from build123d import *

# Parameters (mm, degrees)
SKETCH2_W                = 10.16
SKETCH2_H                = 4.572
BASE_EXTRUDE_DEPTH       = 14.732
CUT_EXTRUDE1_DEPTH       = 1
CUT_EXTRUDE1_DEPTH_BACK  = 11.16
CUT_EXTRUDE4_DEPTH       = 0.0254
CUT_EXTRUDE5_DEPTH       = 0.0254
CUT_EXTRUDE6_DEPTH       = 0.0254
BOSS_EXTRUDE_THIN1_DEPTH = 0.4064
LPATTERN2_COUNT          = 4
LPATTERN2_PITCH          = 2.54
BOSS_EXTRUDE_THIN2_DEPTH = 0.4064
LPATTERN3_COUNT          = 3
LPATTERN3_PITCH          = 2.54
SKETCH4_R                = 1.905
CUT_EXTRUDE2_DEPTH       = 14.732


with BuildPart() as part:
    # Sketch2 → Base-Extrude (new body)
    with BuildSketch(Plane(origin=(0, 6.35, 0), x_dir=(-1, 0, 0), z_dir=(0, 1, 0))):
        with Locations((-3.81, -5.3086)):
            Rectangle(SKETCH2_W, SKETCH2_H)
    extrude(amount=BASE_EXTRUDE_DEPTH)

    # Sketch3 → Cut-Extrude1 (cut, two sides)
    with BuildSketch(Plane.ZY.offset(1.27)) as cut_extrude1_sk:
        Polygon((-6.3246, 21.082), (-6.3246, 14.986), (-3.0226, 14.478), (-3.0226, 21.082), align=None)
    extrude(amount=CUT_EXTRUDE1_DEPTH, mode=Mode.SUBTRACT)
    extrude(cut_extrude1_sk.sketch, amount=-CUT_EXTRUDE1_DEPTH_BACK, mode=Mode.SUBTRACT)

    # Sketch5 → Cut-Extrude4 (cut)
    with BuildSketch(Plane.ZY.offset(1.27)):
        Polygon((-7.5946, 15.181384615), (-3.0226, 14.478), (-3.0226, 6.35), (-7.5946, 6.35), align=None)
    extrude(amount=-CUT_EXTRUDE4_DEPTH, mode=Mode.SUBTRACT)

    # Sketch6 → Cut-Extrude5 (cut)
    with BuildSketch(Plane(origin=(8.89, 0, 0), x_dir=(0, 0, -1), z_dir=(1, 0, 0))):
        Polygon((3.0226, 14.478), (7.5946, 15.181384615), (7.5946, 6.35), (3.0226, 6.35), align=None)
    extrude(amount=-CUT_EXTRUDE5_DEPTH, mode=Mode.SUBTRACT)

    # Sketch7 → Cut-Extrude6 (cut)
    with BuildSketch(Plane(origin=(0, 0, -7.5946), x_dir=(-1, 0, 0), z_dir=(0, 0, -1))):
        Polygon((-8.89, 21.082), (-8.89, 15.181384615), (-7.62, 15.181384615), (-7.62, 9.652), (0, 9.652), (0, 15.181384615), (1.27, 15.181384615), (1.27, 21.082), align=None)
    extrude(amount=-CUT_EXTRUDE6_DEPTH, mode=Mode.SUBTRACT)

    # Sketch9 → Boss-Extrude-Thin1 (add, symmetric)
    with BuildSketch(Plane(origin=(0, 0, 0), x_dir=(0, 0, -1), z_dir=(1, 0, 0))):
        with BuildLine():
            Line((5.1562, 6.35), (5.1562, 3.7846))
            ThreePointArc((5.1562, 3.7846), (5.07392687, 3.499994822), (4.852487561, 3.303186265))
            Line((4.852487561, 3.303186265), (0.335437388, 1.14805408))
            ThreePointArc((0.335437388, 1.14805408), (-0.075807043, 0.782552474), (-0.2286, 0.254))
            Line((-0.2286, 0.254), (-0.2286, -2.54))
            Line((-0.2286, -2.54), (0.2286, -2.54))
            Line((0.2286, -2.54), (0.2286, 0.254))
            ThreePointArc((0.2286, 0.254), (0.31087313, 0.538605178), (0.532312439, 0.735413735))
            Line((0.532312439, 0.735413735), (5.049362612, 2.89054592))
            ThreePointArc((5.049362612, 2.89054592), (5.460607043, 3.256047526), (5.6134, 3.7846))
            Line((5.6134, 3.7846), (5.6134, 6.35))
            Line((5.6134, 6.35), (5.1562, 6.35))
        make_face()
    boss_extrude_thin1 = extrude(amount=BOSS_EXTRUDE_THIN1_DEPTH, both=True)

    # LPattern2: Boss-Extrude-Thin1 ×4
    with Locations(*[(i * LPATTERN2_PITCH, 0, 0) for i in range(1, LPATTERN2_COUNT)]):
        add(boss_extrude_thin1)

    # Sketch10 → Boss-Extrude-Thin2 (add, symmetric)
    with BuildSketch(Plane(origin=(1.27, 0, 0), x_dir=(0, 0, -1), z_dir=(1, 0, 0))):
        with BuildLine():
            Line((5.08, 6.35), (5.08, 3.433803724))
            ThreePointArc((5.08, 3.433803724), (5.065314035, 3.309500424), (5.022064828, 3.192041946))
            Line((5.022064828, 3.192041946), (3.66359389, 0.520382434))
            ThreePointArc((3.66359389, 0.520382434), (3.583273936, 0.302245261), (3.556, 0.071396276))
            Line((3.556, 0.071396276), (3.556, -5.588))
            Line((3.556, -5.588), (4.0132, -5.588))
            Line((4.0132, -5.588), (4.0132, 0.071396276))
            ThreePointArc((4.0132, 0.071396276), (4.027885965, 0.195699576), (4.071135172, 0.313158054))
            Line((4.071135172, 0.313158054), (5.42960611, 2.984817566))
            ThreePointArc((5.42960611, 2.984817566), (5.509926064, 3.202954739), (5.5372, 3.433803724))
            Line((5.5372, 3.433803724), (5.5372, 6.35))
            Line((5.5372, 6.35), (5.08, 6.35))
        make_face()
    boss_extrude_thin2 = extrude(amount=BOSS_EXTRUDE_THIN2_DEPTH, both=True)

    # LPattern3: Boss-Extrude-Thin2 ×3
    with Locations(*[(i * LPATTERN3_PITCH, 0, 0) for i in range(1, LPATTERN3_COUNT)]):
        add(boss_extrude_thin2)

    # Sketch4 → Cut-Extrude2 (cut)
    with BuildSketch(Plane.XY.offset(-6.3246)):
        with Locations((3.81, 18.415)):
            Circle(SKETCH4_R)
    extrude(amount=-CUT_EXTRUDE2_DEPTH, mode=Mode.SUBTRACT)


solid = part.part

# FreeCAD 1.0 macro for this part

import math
import FreeCAD as App
import Part
import Sketcher

V = App.Vector
Q = App.Units.Quantity

doc = App.newDocument("Part")
params = doc.addObject("Spreadsheet::Sheet", "Params")
for row, (alias, value) in enumerate([
    ("sketch1_width", "0.4 in"),
    ("sketch1_height", "0.18 in"),
    ("pad1_length", "0.58 in"),
    ("sketch2_width", "0.24 in"),
    ("sketch2_width2", "0.26 in"),
    ("sketch2_height", "0.13 in"),
    ("sketch3_width", "0.32 in"),
    ("sketch3_height", "0.18 in"),
    ("pocket2_length", "0.001 in"),
    ("sketch4_width", "0.32 in"),
    ("sketch4_height", "0.18 in"),
    ("pocket3_length", "0.001 in"),
    ("sketch5_width", "0.3 in"),
    ("sketch5_width2", "0.4 in"),
    ("pocket4_length", "0.001 in"),
    ("sketch6_radius", "0.021 in"),
    ("sketch6_radius2", "0.039 in"),
    ("sketch6_width", "0.11 in"),
    ("sketch6_width2", "0.101 in"),
    ("pad2_length", "0.032 in"),
    ("linearpattern_pitch", "0.1 in"),
    ("sketch7_radius", "0.021 in"),
    ("sketch7_radius2", "0.039 in"),
    ("sketch7_length", "0.118 in"),
    ("pad3_length", "0.032 in"),
    ("linearpattern2_pitch", "0.1 in"),
    ("sketch8_diameter", "0.15 in"),
    ("pocket5_length", "0.58 in"),
], start=1):
    params.set(f"A{row}", alias)
    params.set(f"B{row}", "=" + value)
    params.setAlias(f"B{row}", alias)

body = doc.addObject("PartDesign::Body", "Body")

# Sketch on XZ plane
sketch1 = doc.addObject("Sketcher::SketchObject", "Sketch")
body.addObject(sketch1)
sketch1.AttachmentSupport = (doc.XZ_Plane, [""])
sketch1.MapMode = "FlatFace"
sketch1.AttachmentOffset = App.Placement(V(0, 0, -0.25 * 25.4), App.Rotation())
sketch1.addGeometry(Part.LineSegment(V(8.89, -3.0226, 0), V(8.89, -7.5946, 0)), False)
sketch1.addGeometry(Part.LineSegment(V(8.89, -7.5946, 0), V(-1.27, -7.5946, 0)), False)
sketch1.addGeometry(Part.LineSegment(V(-1.27, -7.5946, 0), V(-1.27, -3.0226, 0)), False)
sketch1.addGeometry(Part.LineSegment(V(-1.27, -3.0226, 0), V(8.89, -3.0226, 0)), False)
sketch1.addConstraint(Sketcher.Constraint("Coincident", 0, 2, 1, 1))
sketch1.addConstraint(Sketcher.Constraint("Coincident", 1, 2, 2, 1))
sketch1.addConstraint(Sketcher.Constraint("Coincident", 2, 2, 3, 1))
sketch1.addConstraint(Sketcher.Constraint("Coincident", 3, 2, 0, 1))
sketch1.addConstraint(Sketcher.Constraint("Vertical", 0))
sketch1.addConstraint(Sketcher.Constraint("Horizontal", 1))
sketch1.addConstraint(Sketcher.Constraint("Vertical", 2))
sketch1.addConstraint(Sketcher.Constraint("Horizontal", 3))
sketch1.addConstraint(Sketcher.Constraint("DistanceX", 1, 2, 1, 1, Q("0.4 in")))
sketch1.addConstraint(Sketcher.Constraint("DistanceY", 0, 2, 0, 1, Q("0.18 in")))
sketch1.addConstraint(Sketcher.Constraint("DistanceX", -1, 1, 0, 2, Q("0.35 in")))
sketch1.addConstraint(Sketcher.Constraint("DistanceY", 0, 2, -1, 1, Q("0.299 in")))
sketch1.setExpression("Constraints[8]", "Params.sketch1_width")
sketch1.setExpression("Constraints[9]", "Params.sketch1_height")
pad1 = doc.addObject("PartDesign::Pad", "Pad")
body.addObject(pad1)
pad1.Profile = sketch1
pad1.setExpression("Length", "Params.pad1_length")
pad1.Reversed = True

# Sketch on YZ plane
sketch2 = doc.addObject("Sketcher::SketchObject", "Sketch001")
body.addObject(sketch2)
sketch2.AttachmentSupport = (doc.YZ_Plane, [""])
sketch2.MapMode = "FlatFace"
sketch2.AttachmentOffset = App.Placement(V(0, 0, -0.05 * 25.4), App.Rotation())
sketch2.addGeometry(Part.LineSegment(V(21.082, -6.3246, 0), V(14.986, -6.3246, 0)), False)
sketch2.addGeometry(Part.LineSegment(V(14.986, -6.3246, 0), V(14.478, -3.0226, 0)), False)
sketch2.addGeometry(Part.LineSegment(V(14.478, -3.0226, 0), V(21.082, -3.0226, 0)), False)
sketch2.addGeometry(Part.LineSegment(V(21.082, -3.0226, 0), V(21.082, -6.3246, 0)), False)
sketch2.addConstraint(Sketcher.Constraint("Coincident", 0, 2, 1, 1))
sketch2.addConstraint(Sketcher.Constraint("Coincident", 1, 2, 2, 1))
sketch2.addConstraint(Sketcher.Constraint("Coincident", 2, 2, 3, 1))
sketch2.addConstraint(Sketcher.Constraint("Coincident", 3, 2, 0, 1))
sketch2.addConstraint(Sketcher.Constraint("Horizontal", 0))
sketch2.addConstraint(Sketcher.Constraint("Horizontal", 2))
sketch2.addConstraint(Sketcher.Constraint("Vertical", 3))
sketch2.addConstraint(Sketcher.Constraint("DistanceX", 0, 2, 0, 1, Q("0.24 in")))
sketch2.addConstraint(Sketcher.Constraint("DistanceX", 2, 1, 2, 2, Q("0.26 in")))
sketch2.addConstraint(Sketcher.Constraint("DistanceY", 3, 2, 3, 1, Q("0.13 in")))
sketch2.addConstraint(Sketcher.Constraint("DistanceX", -1, 1, 0, 2, Q("0.59 in")))
sketch2.addConstraint(Sketcher.Constraint("DistanceY", 0, 2, -1, 1, Q("0.249 in")))
sketch2.setExpression("Constraints[7]", "Params.sketch2_width")
sketch2.setExpression("Constraints[8]", "Params.sketch2_width2")
sketch2.setExpression("Constraints[9]", "Params.sketch2_height")
pocket1 = doc.addObject("PartDesign::Pocket", "Pocket")
body.addObject(pocket1)
pocket1.Profile = sketch2
pocket1.Type = "ThroughAll"
pocket1.Midplane = True

# Sketch on YZ plane
sketch3 = doc.addObject("Sketcher::SketchObject", "Sketch002")
body.addObject(sketch3)
sketch3.AttachmentSupport = (doc.YZ_Plane, [""])
sketch3.MapMode = "FlatFace"
sketch3.AttachmentOffset = App.Placement(V(0, 0, -0.05 * 25.4), App.Rotation())
sketch3.addGeometry(Part.LineSegment(V(14.478, -3.0226, 0), V(15.181385, -7.5946, 0)), False)
sketch3.addGeometry(Part.LineSegment(V(15.181385, -7.5946, 0), V(6.35, -7.5946, 0)), False)
sketch3.addGeometry(Part.LineSegment(V(6.35, -7.5946, 0), V(6.35, -3.0226, 0)), False)
sketch3.addGeometry(Part.LineSegment(V(6.35, -3.0226, 0), V(14.478, -3.0226, 0)), False)
sketch3.addConstraint(Sketcher.Constraint("Coincident", 0, 2, 1, 1))
sketch3.addConstraint(Sketcher.Constraint("Coincident", 1, 2, 2, 1))
sketch3.addConstraint(Sketcher.Constraint("Coincident", 2, 2, 3, 1))
sketch3.addConstraint(Sketcher.Constraint("Coincident", 3, 2, 0, 1))
sketch3.addConstraint(Sketcher.Constraint("Horizontal", 1))
sketch3.addConstraint(Sketcher.Constraint("Vertical", 2))
sketch3.addConstraint(Sketcher.Constraint("Horizontal", 3))
sketch3.addConstraint(Sketcher.Constraint("DistanceX", 3, 1, 3, 2, Q("0.32 in")))
sketch3.addConstraint(Sketcher.Constraint("DistanceY", 2, 1, 2, 2, Q("0.18 in")))
sketch3.addConstraint(Sketcher.Constraint("DistanceX", -1, 1, 1, 2, Q("0.25 in")))
sketch3.addConstraint(Sketcher.Constraint("DistanceY", 0, 2, -1, 1, Q("0.299 in")))
sketch3.addConstraint(Sketcher.Constraint("Distance", 0, Q("4.62579 mm")))
sketch3.setExpression("Constraints[7]", "Params.sketch3_width")
sketch3.setExpression("Constraints[8]", "Params.sketch3_height")
pocket2 = doc.addObject("PartDesign::Pocket", "Pocket001")
body.addObject(pocket2)
pocket2.Profile = sketch3
pocket2.setExpression("Length", "Params.pocket2_length")
pocket2.Reversed = True

# Sketch on YZ plane
sketch4 = doc.addObject("Sketcher::SketchObject", "Sketch003")
body.addObject(sketch4)
sketch4.AttachmentSupport = (doc.YZ_Plane, [""])
sketch4.MapMode = "FlatFace"
sketch4.AttachmentOffset = App.Placement(V(0, 0, 0.35 * 25.4), App.Rotation())
sketch4.addGeometry(Part.LineSegment(V(15.181385, -7.5946, 0), V(14.478, -3.0226, 0)), False)
sketch4.addGeometry(Part.LineSegment(V(14.478, -3.0226, 0), V(6.35, -3.0226, 0)), False)
sketch4.addGeometry(Part.LineSegment(V(6.35, -3.0226, 0), V(6.35, -7.5946, 0)), False)
sketch4.addGeometry(Part.LineSegment(V(6.35, -7.5946, 0), V(15.181385, -7.5946, 0)), False)
sketch4.addConstraint(Sketcher.Constraint("Coincident", 0, 2, 1, 1))
sketch4.addConstraint(Sketcher.Constraint("Coincident", 1, 2, 2, 1))
sketch4.addConstraint(Sketcher.Constraint("Coincident", 2, 2, 3, 1))
sketch4.addConstraint(Sketcher.Constraint("Coincident", 3, 2, 0, 1))
sketch4.addConstraint(Sketcher.Constraint("Horizontal", 1))
sketch4.addConstraint(Sketcher.Constraint("Vertical", 2))
sketch4.addConstraint(Sketcher.Constraint("Horizontal", 3))
sketch4.addConstraint(Sketcher.Constraint("DistanceX", 1, 2, 1, 1, Q("0.32 in")))
sketch4.addConstraint(Sketcher.Constraint("DistanceY", 2, 2, 2, 1, Q("0.18 in")))
sketch4.addConstraint(Sketcher.Constraint("DistanceX", -1, 1, 0, 2, Q("0.57 in")))
sketch4.addConstraint(Sketcher.Constraint("DistanceY", 0, 2, -1, 1, Q("0.119 in")))
sketch4.addConstraint(Sketcher.Constraint("Distance", 0, Q("4.62579 mm")))
sketch4.setExpression("Constraints[7]", "Params.sketch4_width")
sketch4.setExpression("Constraints[8]", "Params.sketch4_height")
pocket3 = doc.addObject("PartDesign::Pocket", "Pocket002")
body.addObject(pocket3)
pocket3.Profile = sketch4
pocket3.setExpression("Length", "Params.pocket3_length")

# Sketch on XY plane
sketch5 = doc.addObject("Sketcher::SketchObject", "Sketch004")
body.addObject(sketch5)
sketch5.AttachmentSupport = (doc.XY_Plane, [""])
sketch5.MapMode = "FlatFace"
sketch5.AttachmentOffset = App.Placement(V(0, 0, -0.299 * 25.4), App.Rotation())
sketch5.addGeometry(Part.LineSegment(V(8.89, 21.082, 0), V(8.89, 15.181385, 0)), False)
sketch5.addGeometry(Part.LineSegment(V(8.89, 15.181385, 0), V(7.62, 15.181385, 0)), False)
sketch5.addGeometry(Part.LineSegment(V(7.62, 15.181385, 0), V(7.62, 9.652, 0)), False)
sketch5.addGeometry(Part.LineSegment(V(7.62, 9.652, 0), V(0, 9.652, 0)), False)
sketch5.addGeometry(Part.LineSegment(V(0, 9.652, 0), V(0, 15.181385, 0)), False)
sketch5.addGeometry(Part.LineSegment(V(0, 15.181385, 0), V(-1.27, 15.181385, 0)), False)
sketch5.addGeometry(Part.LineSegment(V(-1.27, 15.181385, 0), V(-1.27, 21.082, 0)), False)
sketch5.addGeometry(Part.LineSegment(V(-1.27, 21.082, 0), V(8.89, 21.082, 0)), False)
sketch5.addConstraint(Sketcher.Constraint("Coincident", 0, 2, 1, 1))
sketch5.addConstraint(Sketcher.Constraint("Coincident", 1, 2, 2, 1))
sketch5.addConstraint(Sketcher.Constraint("Coincident", 2, 2, 3, 1))
sketch5.addConstraint(Sketcher.Constraint("Coincident", 3, 2, 4, 1))
sketch5.addConstraint(Sketcher.Constraint("Coincident", 4, 2, 5, 1))
sketch5.addConstraint(Sketcher.Constraint("Coincident", 5, 2, 6, 1))
sketch5.addConstraint(Sketcher.Constraint("Coincident", 6, 2, 7, 1))
sketch5.addConstraint(Sketcher.Constraint("Coincident", 7, 2, 0, 1))
sketch5.addConstraint(Sketcher.Constraint("Vertical", 0))
sketch5.addConstraint(Sketcher.Constraint("Horizontal", 1))
sketch5.addConstraint(Sketcher.Constraint("Vertical", 2))
sketch5.addConstraint(Sketcher.Constraint("Horizontal", 3))
sketch5.addConstraint(Sketcher.Constraint("Vertical", 4))
sketch5.addConstraint(Sketcher.Constraint("Horizontal", 5))
sketch5.addConstraint(Sketcher.Constraint("Vertical", 6))
sketch5.addConstraint(Sketcher.Constraint("Horizontal", 7))
sketch5.addConstraint(Sketcher.Constraint("PointOnObject", 3, 2, -2))
sketch5.addConstraint(Sketcher.Constraint("Horizontal", 1, 2, 4, 2))
sketch5.addConstraint(Sketcher.Constraint("Equal", 1, 5))
sketch5.addConstraint(Sketcher.Constraint("DistanceX", 3, 2, 3, 1, Q("0.3 in")))
sketch5.addConstraint(Sketcher.Constraint("DistanceX", 7, 1, 7, 2, Q("0.4 in")))
sketch5.addConstraint(Sketcher.Constraint("DistanceY", -1, 1, 2, 2, Q("0.38 in")))
sketch5.addConstraint(Sketcher.Constraint("DistanceY", -1, 1, 6, 2, Q("0.83 in")))
sketch5.addConstraint(Sketcher.Constraint("DistanceY", 0, 2, 0, 1, Q("5.900615 mm")))
sketch5.setExpression("Constraints[19]", "Params.sketch5_width")
sketch5.setExpression("Constraints[20]", "Params.sketch5_width2")
pocket4 = doc.addObject("PartDesign::Pocket", "Pocket003")
body.addObject(pocket4)
pocket4.Profile = sketch5
pocket4.setExpression("Length", "Params.pocket4_length")
pocket4.Reversed = True

# Sketch on YZ plane
sketch6 = doc.addObject("Sketcher::SketchObject", "Sketch005")
body.addObject(sketch6)
sketch6.AttachmentSupport = (doc.YZ_Plane, [""])
sketch6.MapMode = "FlatFace"
sketch6.addGeometry(Part.LineSegment(V(6.35, -5.1562, 0), V(3.7846, -5.1562, 0)), False)
sketch6.addGeometry(Part.ArcOfCircle(Part.Circle(V(3.7846, -4.6228, 0), V(0, 0, 1), 0.5334), math.radians(-154.493699), math.radians(-90)), False)
sketch6.addGeometry(Part.LineSegment(V(3.303186, -4.852488, 0), V(1.148054, -0.335437, 0)), False)
sketch6.addGeometry(Part.ArcOfCircle(Part.Circle(V(0.254, -0.762, 0), V(0, 0, 1), 0.9906), math.radians(25.506301), math.radians(90)), False)
sketch6.addGeometry(Part.LineSegment(V(0.254, 0.2286, 0), V(-2.54, 0.2286, 0)), False)
sketch6.addGeometry(Part.LineSegment(V(-2.54, 0.2286, 0), V(-2.54, -0.2286, 0)), False)
sketch6.addGeometry(Part.LineSegment(V(-2.54, -0.2286, 0), V(0.254, -0.2286, 0)), False)
sketch6.addGeometry(Part.ArcOfCircle(Part.Circle(V(0.254, -0.762, 0), V(0, 0, 1), 0.5334), math.radians(25.506301), math.radians(90)), False)
sketch6.addGeometry(Part.LineSegment(V(0.735414, -0.532312, 0), V(2.890546, -5.049363, 0)), False)
sketch6.addGeometry(Part.ArcOfCircle(Part.Circle(V(3.7846, -4.6228, 0), V(0, 0, 1), 0.9906), math.radians(-154.493699), math.radians(-90)), False)
sketch6.addGeometry(Part.LineSegment(V(3.7846, -5.6134, 0), V(6.35, -5.6134, 0)), False)
sketch6.addGeometry(Part.LineSegment(V(6.35, -5.6134, 0), V(6.35, -5.1562, 0)), False)
sketch6.addConstraint(Sketcher.Constraint("Tangent", 0, 2, 1, 2))
sketch6.addConstraint(Sketcher.Constraint("Tangent", 1, 1, 2, 1))
sketch6.addConstraint(Sketcher.Constraint("Tangent", 2, 2, 3, 1))
sketch6.addConstraint(Sketcher.Constraint("Tangent", 3, 2, 4, 1))
sketch6.addConstraint(Sketcher.Constraint("Coincident", 4, 2, 5, 1))
sketch6.addConstraint(Sketcher.Constraint("Coincident", 5, 2, 6, 1))
sketch6.addConstraint(Sketcher.Constraint("Tangent", 6, 2, 7, 2))
sketch6.addConstraint(Sketcher.Constraint("Tangent", 7, 1, 8, 1))
sketch6.addConstraint(Sketcher.Constraint("Tangent", 8, 2, 9, 1))
sketch6.addConstraint(Sketcher.Constraint("Tangent", 9, 2, 10, 1))
sketch6.addConstraint(Sketcher.Constraint("Coincident", 10, 2, 11, 1))
sketch6.addConstraint(Sketcher.Constraint("Coincident", 11, 2, 0, 1))
sketch6.addConstraint(Sketcher.Constraint("Horizontal", 0))
sketch6.addConstraint(Sketcher.Constraint("Horizontal", 4))
sketch6.addConstraint(Sketcher.Constraint("Vertical", 5))
sketch6.addConstraint(Sketcher.Constraint("Horizontal", 6))
sketch6.addConstraint(Sketcher.Constraint("Horizontal", 10))
sketch6.addConstraint(Sketcher.Constraint("Vertical", 11))
sketch6.addConstraint(Sketcher.Constraint("Coincident", 7, 3, 3, 3))
sketch6.addConstraint(Sketcher.Constraint("Coincident", 9, 3, 1, 3))
sketch6.addConstraint(Sketcher.Constraint("Equal", 1, 7))
sketch6.addConstraint(Sketcher.Constraint("Equal", 3, 9))
sketch6.addConstraint(Sketcher.Constraint("Radius", 1, Q("0.021 in")))
sketch6.addConstraint(Sketcher.Constraint("Radius", 3, Q("0.039 in")))
sketch6.addConstraint(Sketcher.Constraint("DistanceX", 4, 2, 4, 1, Q("0.11 in")))
sketch6.addConstraint(Sketcher.Constraint("DistanceX", 4, 2, -1, 1, Q("0.1 in")))
sketch6.addConstraint(Sketcher.Constraint("DistanceX", 0, 2, 0, 1, Q("0.101 in")))
sketch6.addConstraint(Sketcher.Constraint("DistanceY", 3, 3, -1, 1, Q("0.03 in")))
sketch6.addConstraint(Sketcher.Constraint("DistanceX", -1, 1, 10, 2, Q("0.25 in")))
sketch6.addConstraint(Sketcher.Constraint("DistanceY", 1, 3, -1, 1, Q("0.182 in")))
sketch6.setExpression("Constraints[22]", "Params.sketch6_radius")
sketch6.setExpression("Constraints[23]", "Params.sketch6_radius2")
sketch6.setExpression("Constraints[24]", "Params.sketch6_width")
sketch6.setExpression("Constraints[26]", "Params.sketch6_width2")
pad2 = doc.addObject("PartDesign::Pad", "Pad001")
body.addObject(pad2)
pad2.Profile = sketch6
pad2.setExpression("Length", "Params.pad2_length")
pad2.Midplane = True
doc.recompute()

linearpattern = doc.addObject("PartDesign::LinearPattern", "LinearPattern")
body.addObject(linearpattern)
linearpattern.Originals = [pad2]
linearpattern.Direction = (doc.X_Axis, [""])
linearpattern.Mode = "offset"
linearpattern.setExpression("Offset", "Params.linearpattern_pitch")
linearpattern.Occurrences = 4
body.Tip = linearpattern

# Sketch on YZ plane
sketch7 = doc.addObject("Sketcher::SketchObject", "Sketch006")
body.addObject(sketch7)
sketch7.AttachmentSupport = (doc.YZ_Plane, [""])
sketch7.MapMode = "FlatFace"
sketch7.AttachmentOffset = App.Placement(V(0, 0, 0.05 * 25.4), App.Rotation())
sketch7.addGeometry(Part.LineSegment(V(6.35, -5.08, 0), V(3.433804, -5.08, 0)), False)
sketch7.addGeometry(Part.ArcOfCircle(Part.Circle(V(3.433804, -4.5466, 0), V(0, 0, 1), 0.5334), math.radians(-116.952179), math.radians(-90)), False)
sketch7.addGeometry(Part.LineSegment(V(3.192042, -5.022065, 0), V(0.520382, -3.663594, 0)), False)
sketch7.addGeometry(Part.ArcOfCircle(Part.Circle(V(0.071396, -4.5466, 0), V(0, 0, 1), 0.9906), math.radians(63.047821), math.radians(90)), False)
sketch7.addGeometry(Part.LineSegment(V(0.071396, -3.556, 0), V(-5.588, -3.556, 0)), False)
sketch7.addGeometry(Part.LineSegment(V(-5.588, -3.556, 0), V(-5.588, -4.0132, 0)), False)
sketch7.addGeometry(Part.LineSegment(V(-5.588, -4.0132, 0), V(0.071396, -4.0132, 0)), False)
sketch7.addGeometry(Part.ArcOfCircle(Part.Circle(V(0.071396, -4.5466, 0), V(0, 0, 1), 0.5334), math.radians(63.047821), math.radians(90)), False)
sketch7.addGeometry(Part.LineSegment(V(0.313158, -4.071135, 0), V(2.984818, -5.429606, 0)), False)
sketch7.addGeometry(Part.ArcOfCircle(Part.Circle(V(3.433804, -4.5466, 0), V(0, 0, 1), 0.9906), math.radians(-116.952179), math.radians(-90)), False)
sketch7.addGeometry(Part.LineSegment(V(3.433804, -5.5372, 0), V(6.35, -5.5372, 0)), False)
sketch7.addGeometry(Part.LineSegment(V(6.35, -5.5372, 0), V(6.35, -5.08, 0)), False)
sketch7.addConstraint(Sketcher.Constraint("Tangent", 0, 2, 1, 2))
sketch7.addConstraint(Sketcher.Constraint("Tangent", 1, 1, 2, 1))
sketch7.addConstraint(Sketcher.Constraint("Tangent", 2, 2, 3, 1))
sketch7.addConstraint(Sketcher.Constraint("Tangent", 3, 2, 4, 1))
sketch7.addConstraint(Sketcher.Constraint("Coincident", 4, 2, 5, 1))
sketch7.addConstraint(Sketcher.Constraint("Coincident", 5, 2, 6, 1))
sketch7.addConstraint(Sketcher.Constraint("Tangent", 6, 2, 7, 2))
sketch7.addConstraint(Sketcher.Constraint("Tangent", 7, 1, 8, 1))
sketch7.addConstraint(Sketcher.Constraint("Tangent", 8, 2, 9, 1))
sketch7.addConstraint(Sketcher.Constraint("Tangent", 9, 2, 10, 1))
sketch7.addConstraint(Sketcher.Constraint("Coincident", 10, 2, 11, 1))
sketch7.addConstraint(Sketcher.Constraint("Coincident", 11, 2, 0, 1))
sketch7.addConstraint(Sketcher.Constraint("Horizontal", 0))
sketch7.addConstraint(Sketcher.Constraint("Horizontal", 4))
sketch7.addConstraint(Sketcher.Constraint("Vertical", 5))
sketch7.addConstraint(Sketcher.Constraint("Horizontal", 6))
sketch7.addConstraint(Sketcher.Constraint("Horizontal", 10))
sketch7.addConstraint(Sketcher.Constraint("Vertical", 11))
sketch7.addConstraint(Sketcher.Constraint("Coincident", 7, 3, 3, 3))
sketch7.addConstraint(Sketcher.Constraint("Coincident", 9, 3, 1, 3))
sketch7.addConstraint(Sketcher.Constraint("Equal", 1, 7))
sketch7.addConstraint(Sketcher.Constraint("Equal", 3, 9))
sketch7.addConstraint(Sketcher.Constraint("Horizontal", 1, 3, 3, 3))
sketch7.addConstraint(Sketcher.Constraint("Radius", 1, Q("0.021 in")))
sketch7.addConstraint(Sketcher.Constraint("Radius", 3, Q("0.039 in")))
sketch7.addConstraint(Sketcher.Constraint("DistanceY", 0, 2, -1, 1, Q("0.2 in")))
sketch7.addConstraint(Sketcher.Constraint("DistanceX", 4, 2, -1, 1, Q("0.22 in")))
sketch7.addConstraint(Sketcher.Constraint("DistanceX", -1, 1, 10, 2, Q("0.25 in")))
sketch7.addConstraint(Sketcher.Constraint("Distance", 2, Q("0.118 in")))
sketch7.addConstraint(Sketcher.Constraint("DistanceX", 0, 2, 0, 1, Q("2.916196 mm")))
sketch7.setExpression("Constraints[23]", "Params.sketch7_radius")
sketch7.setExpression("Constraints[24]", "Params.sketch7_radius2")
sketch7.setExpression("Constraints[28]", "Params.sketch7_length")
pad3 = doc.addObject("PartDesign::Pad", "Pad002")
body.addObject(pad3)
pad3.Profile = sketch7
pad3.setExpression("Length", "Params.pad3_length")
pad3.Midplane = True
doc.recompute()

linearpattern2 = doc.addObject("PartDesign::LinearPattern", "LinearPattern001")
body.addObject(linearpattern2)
linearpattern2.Originals = [pad3]
linearpattern2.Direction = (doc.X_Axis, [""])
linearpattern2.Mode = "offset"
linearpattern2.setExpression("Offset", "Params.linearpattern2_pitch")
linearpattern2.Occurrences = 3
body.Tip = linearpattern2

# Sketch on XY plane
sketch8 = doc.addObject("Sketcher::SketchObject", "Sketch007")
body.addObject(sketch8)
sketch8.AttachmentSupport = (doc.XY_Plane, [""])
sketch8.MapMode = "FlatFace"
sketch8.AttachmentOffset = App.Placement(V(0, 0, -0.249 * 25.4), App.Rotation())
sketch8.addGeometry(Part.Circle(V(3.81, 18.415, 0), V(0, 0, 1), 1.905), False)
sketch8.addConstraint(Sketcher.Constraint("Diameter", 0, Q("0.15 in")))
sketch8.addConstraint(Sketcher.Constraint("DistanceX", -1, 1, 0, 3, Q("0.15 in")))
sketch8.addConstraint(Sketcher.Constraint("DistanceY", -1, 1, 0, 3, Q("0.725 in")))
sketch8.setExpression("Constraints[0]", "Params.sketch8_diameter")
pocket5 = doc.addObject("PartDesign::Pocket", "Pocket004")
body.addObject(pocket5)
pocket5.Profile = sketch8
pocket5.setExpression("Length", "Params.pocket5_length")

doc.recompute()
